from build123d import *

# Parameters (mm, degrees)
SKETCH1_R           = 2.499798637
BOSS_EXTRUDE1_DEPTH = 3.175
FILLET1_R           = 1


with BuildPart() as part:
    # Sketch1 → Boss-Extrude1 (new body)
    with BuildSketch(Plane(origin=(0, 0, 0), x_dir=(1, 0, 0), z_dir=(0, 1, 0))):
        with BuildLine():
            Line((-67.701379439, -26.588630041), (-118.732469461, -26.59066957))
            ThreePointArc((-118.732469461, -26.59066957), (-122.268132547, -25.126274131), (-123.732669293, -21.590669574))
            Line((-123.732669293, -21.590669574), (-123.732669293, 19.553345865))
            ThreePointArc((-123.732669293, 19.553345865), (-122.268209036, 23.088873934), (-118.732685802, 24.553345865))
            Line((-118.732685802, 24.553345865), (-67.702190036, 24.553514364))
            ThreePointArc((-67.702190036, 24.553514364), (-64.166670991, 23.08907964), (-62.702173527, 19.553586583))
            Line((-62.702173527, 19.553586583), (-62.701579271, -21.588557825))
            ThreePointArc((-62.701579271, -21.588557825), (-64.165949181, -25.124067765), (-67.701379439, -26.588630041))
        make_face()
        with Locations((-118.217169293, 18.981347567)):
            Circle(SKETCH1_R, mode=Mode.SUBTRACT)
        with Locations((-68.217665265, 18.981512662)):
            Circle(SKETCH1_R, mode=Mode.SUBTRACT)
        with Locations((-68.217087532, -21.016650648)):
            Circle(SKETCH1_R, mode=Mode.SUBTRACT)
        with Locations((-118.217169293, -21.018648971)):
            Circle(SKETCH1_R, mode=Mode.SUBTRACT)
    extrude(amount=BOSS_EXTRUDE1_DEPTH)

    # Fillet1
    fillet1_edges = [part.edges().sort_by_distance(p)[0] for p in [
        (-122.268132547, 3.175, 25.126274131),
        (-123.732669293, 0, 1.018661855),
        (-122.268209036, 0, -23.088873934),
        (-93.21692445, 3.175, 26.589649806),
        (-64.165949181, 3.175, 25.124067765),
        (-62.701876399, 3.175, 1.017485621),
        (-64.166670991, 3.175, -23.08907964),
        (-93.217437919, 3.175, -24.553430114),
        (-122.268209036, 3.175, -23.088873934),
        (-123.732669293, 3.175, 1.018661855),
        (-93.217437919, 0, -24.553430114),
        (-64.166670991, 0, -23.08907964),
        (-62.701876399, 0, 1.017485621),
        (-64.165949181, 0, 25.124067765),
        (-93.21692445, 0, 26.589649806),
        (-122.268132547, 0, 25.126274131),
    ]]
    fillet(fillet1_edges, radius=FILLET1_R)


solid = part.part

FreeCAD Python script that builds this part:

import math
import FreeCAD as App
import Part
import Sketcher
from FreeCAD import Vector


def edges_at(feature, points):
    """Names of the edges that pass closest to the given points."""
    edges = feature.Shape.Edges
    near = lambda p: min(range(len(edges)), key=lambda i: edges[i].distToShape(Part.Vertex(*p))[0])
    return sorted({f"Edge{near(p) + 1}" for p in points})

doc = App.newDocument("Part")
body = doc.addObject("PartDesign::Body", "Body")

sketch1 = body.newObject("Sketcher::SketchObject", "Sketch")
sketch1.AttachmentSupport = (doc.getObject("XZ_Plane"), [""])
sketch1.MapMode = "FlatFace"
sketch1.addGeometry(Part.LineSegment(Vector(-118.7, 26.6, 0), Vector(-67.7, 26.6, 0)), False)
sketch1.addGeometry(Part.ArcOfCircle(Part.Circle(Vector(-67.7, 21.6, 0), Vector(0, 0, 1), 5), math.radians(0), math.radians(90)), False)
sketch1.addGeometry(Part.LineSegment(Vector(-62.7, 21.6, 0), Vector(-62.7, -19.6, 0)), False)
sketch1.addGeometry(Part.ArcOfCircle(Part.Circle(Vector(-67.7, -19.6, 0), Vector(0, 0, 1), 5), math.radians(-90), math.radians(0)), False)
sketch1.addGeometry(Part.LineSegment(Vector(-67.7, -24.6, 0), Vector(-118.7, -24.6, 0)), False)
sketch1.addGeometry(Part.ArcOfCircle(Part.Circle(Vector(-118.7, -19.6, 0), Vector(0, 0, 1), 5), math.radians(180), math.radians(270)), False)
sketch1.addGeometry(Part.LineSegment(Vector(-123.7, -19.6, 0), Vector(-123.7, 21.6, 0)), False)
sketch1.addGeometry(Part.ArcOfCircle(Part.Circle(Vector(-118.7, 21.6, 0), Vector(0, 0, 1), 5), math.radians(90), math.radians(180)), False)
sketch1.addGeometry(Part.Circle(Vector(-68.2, 21, 0), Vector(0, 0, 1), 2.5), False)
sketch1.addGeometry(Part.Circle(Vector(-118.2, 21, 0), Vector(0, 0, 1), 2.5), False)
sketch1.addGeometry(Part.Circle(Vector(-68.2, -19, 0), Vector(0, 0, 1), 2.5), False)
sketch1.addGeometry(Part.Circle(Vector(-118.2, -19, 0), Vector(0, 0, 1), 2.5), False)
sketch1.addConstraint(Sketcher.Constraint("Tangent", 0, 2, 1, 2))
sketch1.addConstraint(Sketcher.Constraint("Tangent", 1, 1, 2, 1))
sketch1.addConstraint(Sketcher.Constraint("Tangent", 2, 2, 3, 2))
sketch1.addConstraint(Sketcher.Constraint("Tangent", 3, 1, 4, 1))
sketch1.addConstraint(Sketcher.Constraint("Tangent", 4, 2, 5, 2))
sketch1.addConstraint(Sketcher.Constraint("Tangent", 5, 1, 6, 1))
sketch1.addConstraint(Sketcher.Constraint("Tangent", 6, 2, 7, 2))
sketch1.addConstraint(Sketcher.Constraint("Tangent", 7, 1, 0, 1))
sketch1.addConstraint(Sketcher.Constraint("Vertical", 6))
sketch1.addConstraint(Sketcher.Constraint("Equal", 1, 3))
sketch1.addConstraint(Sketcher.Constraint("Equal", 3, 5))
sketch1.addConstraint(Sketcher.Constraint("Equal", 5, 7))
sketch1.addConstraint(Sketcher.Constraint("Equal", 8, 9))
sketch1.addConstraint(Sketcher.Constraint("Equal", 9, 10))
sketch1.addConstraint(Sketcher.Constraint("Equal", 10, 11))
sketch1.addConstraint(Sketcher.Constraint("Vertical", 9, 3, 11, 3))
sketch1.addConstraint(Sketcher.Constraint("Radius", 1, 5.0))
sketch1.addConstraint(Sketcher.Constraint("Diameter", 8, 4.999597))
sketch1.addConstraint(Sketcher.Constraint("DistanceY", 8, 3, 9, 3, 0.001998))
sketch1.addConstraint(Sketcher.Constraint("DistanceY", 3, 3, 10, 3, 0.572002))
sketch1.addConstraint(Sketcher.Constraint("DistanceY", 5, 3, 11, 3, 0.571998))
sketch1.addConstraint(Sketcher.Constraint("DistanceX", 7, 3, 9, 3, 0.5155))
sketch1.addConstraint(Sketcher.Constraint("DistanceX", 1, 3, 0, 2, 0.0002))
sketch1.addConstraint(Sketcher.Constraint("Distance", 0, 51.03109))
sketch1.addConstraint(Sketcher.Constraint("DistanceY", 6, 1, 6, 2, 41.144015))
sketch1.addConstraint(Sketcher.Constraint("DistanceX", 1, 3, -1, 1, 67.701579))
sketch1.addConstraint(Sketcher.Constraint("DistanceY", -1, 1, 1, 3, 21.58863))
sketch1.addConstraint(Sketcher.Constraint("DistanceY", -1, 1, 8, 3, 21.016651))
sketch1.addConstraint(Sketcher.Constraint("DistanceX", 3, 1, -1, 1, 67.70219))
sketch1.addConstraint(Sketcher.Constraint("DistanceY", 3, 3, 5, 3, 0.000168))
sketch1.addConstraint(Sketcher.Constraint("DistanceX", 8, 3, 1, 3, 0.515508))
sketch1.addConstraint(Sketcher.Constraint("DistanceX", 10, 3, 3, 3, 0.515492))
pad1 = body.newObject("PartDesign::Pad", "Pad")
pad1.Profile = sketch1
pad1.Length = 3.175
pad1.Reversed = True
doc.recompute()

fillet = body.newObject("PartDesign::Fillet", "Fillet")
fillet.Base = (pad1, edges_at(pad1, [
    (-122.268, 3.175, 25.126),
    (-123.733, 0, 1.019),
    (-122.268, 0, -23.089),
    (-93.217, 3.175, 26.59),
    (-64.166, 3.175, 25.124),
    (-62.702, 3.175, 1.017),
    (-64.167, 3.175, -23.089),
    (-93.217, 3.175, -24.553),
    (-122.268, 3.175, -23.089),
    (-123.733, 3.175, 1.019),
    (-93.217, 0, -24.553),
    (-64.167, 0, -23.089),
    (-62.702, 0, 1.017),
    (-64.166, 0, 25.124),
    (-93.217, 0, 26.59),
    (-122.268, 0, 25.126),
]))
fillet.Radius = 1

doc.recompute()
